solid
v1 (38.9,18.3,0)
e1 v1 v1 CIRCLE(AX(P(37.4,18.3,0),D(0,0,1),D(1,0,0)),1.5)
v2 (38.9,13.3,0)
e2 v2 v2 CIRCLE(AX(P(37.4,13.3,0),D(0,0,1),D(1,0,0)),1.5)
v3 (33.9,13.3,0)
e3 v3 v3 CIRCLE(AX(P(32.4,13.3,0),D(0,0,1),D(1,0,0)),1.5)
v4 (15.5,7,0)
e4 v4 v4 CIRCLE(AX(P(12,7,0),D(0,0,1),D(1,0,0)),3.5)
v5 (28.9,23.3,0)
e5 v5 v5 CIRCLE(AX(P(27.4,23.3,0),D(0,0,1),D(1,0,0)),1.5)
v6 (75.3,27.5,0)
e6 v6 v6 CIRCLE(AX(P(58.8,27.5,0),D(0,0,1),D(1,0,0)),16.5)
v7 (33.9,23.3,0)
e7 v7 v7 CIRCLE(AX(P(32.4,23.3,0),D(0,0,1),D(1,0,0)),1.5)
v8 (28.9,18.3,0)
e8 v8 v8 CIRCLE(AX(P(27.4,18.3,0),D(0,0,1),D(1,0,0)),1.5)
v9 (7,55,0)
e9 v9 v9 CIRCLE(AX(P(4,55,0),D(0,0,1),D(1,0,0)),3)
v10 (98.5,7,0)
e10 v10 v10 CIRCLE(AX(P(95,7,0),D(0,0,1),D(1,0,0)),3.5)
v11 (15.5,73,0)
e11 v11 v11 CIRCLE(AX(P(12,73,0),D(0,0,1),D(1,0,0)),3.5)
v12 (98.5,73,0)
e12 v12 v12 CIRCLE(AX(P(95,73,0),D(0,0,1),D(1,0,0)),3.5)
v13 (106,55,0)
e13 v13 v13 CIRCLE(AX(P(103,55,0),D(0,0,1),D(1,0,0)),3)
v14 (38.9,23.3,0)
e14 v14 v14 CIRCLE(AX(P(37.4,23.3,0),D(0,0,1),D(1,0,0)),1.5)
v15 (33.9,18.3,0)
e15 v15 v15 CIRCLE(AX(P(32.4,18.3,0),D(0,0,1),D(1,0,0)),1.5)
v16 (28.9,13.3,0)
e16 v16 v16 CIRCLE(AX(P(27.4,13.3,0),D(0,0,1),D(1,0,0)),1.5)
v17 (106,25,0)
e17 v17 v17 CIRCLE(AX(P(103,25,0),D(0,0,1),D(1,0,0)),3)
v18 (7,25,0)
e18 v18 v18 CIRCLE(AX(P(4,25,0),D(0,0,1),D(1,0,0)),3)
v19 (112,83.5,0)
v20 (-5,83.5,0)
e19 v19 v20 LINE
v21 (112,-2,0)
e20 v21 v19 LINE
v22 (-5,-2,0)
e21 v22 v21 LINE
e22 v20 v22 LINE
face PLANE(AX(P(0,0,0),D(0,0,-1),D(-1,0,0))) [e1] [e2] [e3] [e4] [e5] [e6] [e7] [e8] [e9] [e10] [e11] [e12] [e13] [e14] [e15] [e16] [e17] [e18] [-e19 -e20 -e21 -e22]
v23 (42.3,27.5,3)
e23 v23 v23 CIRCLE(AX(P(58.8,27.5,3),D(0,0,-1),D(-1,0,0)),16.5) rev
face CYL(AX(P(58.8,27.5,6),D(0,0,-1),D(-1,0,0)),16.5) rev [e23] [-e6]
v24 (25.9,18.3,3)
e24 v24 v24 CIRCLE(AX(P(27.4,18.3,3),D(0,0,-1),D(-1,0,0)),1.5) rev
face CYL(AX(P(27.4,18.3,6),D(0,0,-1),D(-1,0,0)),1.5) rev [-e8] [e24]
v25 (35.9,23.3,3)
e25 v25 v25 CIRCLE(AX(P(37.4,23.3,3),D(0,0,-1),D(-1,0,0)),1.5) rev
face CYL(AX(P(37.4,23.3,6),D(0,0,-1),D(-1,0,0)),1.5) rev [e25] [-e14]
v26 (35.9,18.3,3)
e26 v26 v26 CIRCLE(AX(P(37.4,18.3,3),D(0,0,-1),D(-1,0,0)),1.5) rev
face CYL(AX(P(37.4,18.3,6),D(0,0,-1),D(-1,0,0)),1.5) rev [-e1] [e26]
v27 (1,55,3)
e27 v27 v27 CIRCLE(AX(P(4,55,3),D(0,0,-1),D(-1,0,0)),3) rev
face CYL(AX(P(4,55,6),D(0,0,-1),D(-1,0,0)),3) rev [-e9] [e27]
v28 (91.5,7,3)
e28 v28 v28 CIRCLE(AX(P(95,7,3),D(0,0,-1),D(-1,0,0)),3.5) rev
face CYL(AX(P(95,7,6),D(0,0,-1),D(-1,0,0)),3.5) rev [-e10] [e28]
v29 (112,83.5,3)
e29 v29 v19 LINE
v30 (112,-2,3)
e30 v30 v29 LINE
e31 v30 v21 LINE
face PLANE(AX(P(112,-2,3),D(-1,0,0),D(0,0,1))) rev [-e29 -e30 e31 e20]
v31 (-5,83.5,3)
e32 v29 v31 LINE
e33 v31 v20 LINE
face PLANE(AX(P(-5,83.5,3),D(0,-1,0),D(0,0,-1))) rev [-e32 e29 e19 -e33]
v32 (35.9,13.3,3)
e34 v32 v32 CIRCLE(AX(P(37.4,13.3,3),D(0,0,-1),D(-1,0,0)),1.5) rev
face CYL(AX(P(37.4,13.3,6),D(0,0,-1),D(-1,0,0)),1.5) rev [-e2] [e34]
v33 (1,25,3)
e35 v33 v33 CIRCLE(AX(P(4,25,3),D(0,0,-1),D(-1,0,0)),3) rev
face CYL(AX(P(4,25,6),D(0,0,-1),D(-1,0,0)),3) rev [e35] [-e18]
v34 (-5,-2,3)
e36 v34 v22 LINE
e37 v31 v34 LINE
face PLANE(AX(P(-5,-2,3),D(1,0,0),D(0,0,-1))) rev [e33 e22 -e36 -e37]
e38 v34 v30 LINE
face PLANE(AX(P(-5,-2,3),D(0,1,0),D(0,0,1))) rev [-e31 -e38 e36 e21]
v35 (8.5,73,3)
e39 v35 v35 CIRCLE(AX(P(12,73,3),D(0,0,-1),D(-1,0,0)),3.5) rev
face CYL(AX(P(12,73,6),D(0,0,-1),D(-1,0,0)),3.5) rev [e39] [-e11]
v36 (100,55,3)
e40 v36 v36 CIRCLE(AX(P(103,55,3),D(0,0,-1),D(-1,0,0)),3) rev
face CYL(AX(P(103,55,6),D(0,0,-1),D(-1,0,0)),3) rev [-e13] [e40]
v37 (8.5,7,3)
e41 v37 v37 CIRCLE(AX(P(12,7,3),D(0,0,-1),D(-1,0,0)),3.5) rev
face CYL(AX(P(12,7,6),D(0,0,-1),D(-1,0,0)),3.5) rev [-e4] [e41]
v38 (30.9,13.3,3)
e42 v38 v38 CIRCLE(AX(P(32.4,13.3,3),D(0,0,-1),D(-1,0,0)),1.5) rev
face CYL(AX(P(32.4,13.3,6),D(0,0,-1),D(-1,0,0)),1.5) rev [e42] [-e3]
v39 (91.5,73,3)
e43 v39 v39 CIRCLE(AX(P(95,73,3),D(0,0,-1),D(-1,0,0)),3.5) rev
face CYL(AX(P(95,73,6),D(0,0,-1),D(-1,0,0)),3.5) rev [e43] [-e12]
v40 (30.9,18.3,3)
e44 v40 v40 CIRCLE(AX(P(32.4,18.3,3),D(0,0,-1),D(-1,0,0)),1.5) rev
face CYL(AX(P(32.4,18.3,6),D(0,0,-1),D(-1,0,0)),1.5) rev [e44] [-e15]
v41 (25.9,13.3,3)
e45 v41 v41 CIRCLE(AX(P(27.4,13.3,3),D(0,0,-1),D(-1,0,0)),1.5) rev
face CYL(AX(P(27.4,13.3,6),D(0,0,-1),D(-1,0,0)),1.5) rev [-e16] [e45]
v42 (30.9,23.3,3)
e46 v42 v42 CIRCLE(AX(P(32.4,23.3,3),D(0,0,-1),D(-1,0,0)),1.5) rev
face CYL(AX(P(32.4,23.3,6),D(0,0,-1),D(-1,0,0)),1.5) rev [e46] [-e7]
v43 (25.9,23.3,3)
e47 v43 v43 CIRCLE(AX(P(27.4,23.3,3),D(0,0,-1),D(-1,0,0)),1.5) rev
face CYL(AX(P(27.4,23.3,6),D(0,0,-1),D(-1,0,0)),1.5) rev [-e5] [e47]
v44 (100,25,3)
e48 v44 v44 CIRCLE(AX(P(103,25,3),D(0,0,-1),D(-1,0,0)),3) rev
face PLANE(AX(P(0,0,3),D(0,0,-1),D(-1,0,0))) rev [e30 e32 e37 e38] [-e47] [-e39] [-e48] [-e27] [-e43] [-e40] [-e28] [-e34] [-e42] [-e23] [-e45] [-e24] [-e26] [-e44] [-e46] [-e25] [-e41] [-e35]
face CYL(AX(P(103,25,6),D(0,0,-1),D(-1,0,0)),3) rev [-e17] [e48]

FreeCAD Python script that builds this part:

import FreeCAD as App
import Part
import Sketcher

V = App.Vector
Q = App.Units.Quantity

doc = App.newDocument("Part")
body = doc.addObject("PartDesign::Body", "Body")

# Sketch on XY plane
sketch1 = body.newObject("Sketcher::SketchObject", "Sketch")
sketch1.AttachmentSupport = (doc.getObject("XY_Plane"), [""])
sketch1.MapMode = "FlatFace"
sketch1.addGeometry([
    Part.LineSegment(V(-5, 82, 0), V(-5, -2, 0)),
    Part.LineSegment(V(-5, -2, 0), V(112, -2, 0)),
    Part.LineSegment(V(112, -2, 0), V(112, 82, 0)),
    Part.LineSegment(V(112, 82, 0), V(-5, 82, 0)),
], False)
sketch1.addConstraint([
    Sketcher.Constraint("Coincident", 0, 2, 1, 1),
    Sketcher.Constraint("Coincident", 1, 2, 2, 1),
    Sketcher.Constraint("Coincident", 2, 2, 3, 1),
    Sketcher.Constraint("Coincident", 3, 2, 0, 1),
    Sketcher.Constraint("Vertical", 0),
    Sketcher.Constraint("Horizontal", 1),
    Sketcher.Constraint("Vertical", 2),
    Sketcher.Constraint("Horizontal", 3),
    Sketcher.Constraint("DistanceX", 1, 1, 1, 2, Q("117 mm")),
    Sketcher.Constraint("DistanceY", 0, 2, 0, 1, Q("84 mm")),
    Sketcher.Constraint("DistanceX", 0, 2, -1, 1, Q("5 mm")),
    Sketcher.Constraint("DistanceY", 0, 2, -1, 1, Q("2 mm")),
])
pad1 = body.newObject("PartDesign::Pad", "Pad")
pad1.Profile = sketch1
pad1.Length = 3

# Sketch on XY plane
sketch2 = body.newObject("Sketcher::SketchObject", "Sketch001")
sketch2.AttachmentSupport = (doc.getObject("XY_Plane"), [""])
sketch2.MapMode = "FlatFace"
sketch2.addGeometry([
    Part.Circle(V(12, 7, 0), V(0, 0, 1), 3.5),
    Part.Circle(V(95, 7, 0), V(0, 0, 1), 3.5),
    Part.Circle(V(12, 73, 0), V(0, 0, 1), 3.5),
    Part.Circle(V(95, 73, 0), V(0, 0, 1), 3.5),
], False)
sketch2.addConstraint([
    Sketcher.Constraint("Equal", 0, 1),
    Sketcher.Constraint("Equal", 1, 2),
    Sketcher.Constraint("Equal", 2, 3),
    Sketcher.Constraint("Horizontal", 0, 3, 1, 3),
    Sketcher.Constraint("Horizontal", 2, 3, 3, 3),
    Sketcher.Constraint("Vertical", 0, 3, 2, 3),
    Sketcher.Constraint("Vertical", 1, 3, 3, 3),
    Sketcher.Constraint("Diameter", 0, Q("7 mm")),
    Sketcher.Constraint("DistanceX", -1, 1, 0, 3, Q("12 mm")),
    Sketcher.Constraint("DistanceY", -1, 1, 0, 3, Q("7 mm")),
    Sketcher.Constraint("DistanceX", -1, 1, 1, 3, Q("95 mm")),
    Sketcher.Constraint("DistanceY", -1, 1, 2, 3, Q("73 mm")),
])
pocket1 = body.newObject("PartDesign::Pocket", "Pocket")
pocket1.Profile = sketch2
pocket1.Length = 3
pocket1.Reversed = True

# Sketch on XY plane
sketch3 = body.newObject("Sketcher::SketchObject", "Sketch002")
sketch3.AttachmentSupport = (doc.getObject("XY_Plane"), [""])
sketch3.MapMode = "FlatFace"
sketch3.addGeometry(Part.Circle(V(59, 28, 0), V(0, 0, 1), 16), False)
sketch3.addConstraint([
    Sketcher.Constraint("Diameter", 0, Q("33 mm")),
    Sketcher.Constraint("DistanceX", -1, 1, 0, 3, Q("58.8 mm")),
    Sketcher.Constraint("DistanceY", -1, 1, 0, 3, Q("27.5 mm")),
])
pocket2 = body.newObject("PartDesign::Pocket", "Pocket001")
pocket2.Profile = sketch3
pocket2.Length = 3
pocket2.Reversed = True

# Sketch on XY plane
sketch4 = body.newObject("Sketcher::SketchObject", "Sketch003")
sketch4.AttachmentSupport = (doc.getObject("XY_Plane"), [""])
sketch4.MapMode = "FlatFace"
sketch4.addGeometry([
    Part.Circle(V(27.4, 13.3, 0), V(0, 0, 1), 1.5),  # 0
    Part.Circle(V(27.4, 18.3, 0), V(0, 0, 1), 1.5),  # 1
    Part.Circle(V(27.4, 23.3, 0), V(0, 0, 1), 1.5),  # 2
    Part.Circle(V(32.4, 13.3, 0), V(0, 0, 1), 1.5),  # 3
    Part.Circle(V(32.4, 18.3, 0), V(0, 0, 1), 1.5),  # 4
    Part.Circle(V(32.4, 23.3, 0), V(0, 0, 1), 1.5),  # 5
    Part.Circle(V(37.4, 13.3, 0), V(0, 0, 1), 1.5),  # 6
    Part.Circle(V(37.4, 18.3, 0), V(0, 0, 1), 1.5),  # 7
    Part.Circle(V(37.4, 23.3, 0), V(0, 0, 1), 1.5),  # 8
], False)
sketch4.addConstraint([
    Sketcher.Constraint("Equal", 0, 1),
    Sketcher.Constraint("Equal", 1, 2),
    Sketcher.Constraint("Equal", 2, 3),
    Sketcher.Constraint("Equal", 3, 4),
    Sketcher.Constraint("Equal", 4, 5),
    Sketcher.Constraint("Equal", 5, 6),
    Sketcher.Constraint("Equal", 6, 7),
    Sketcher.Constraint("Equal", 7, 8),
    Sketcher.Constraint("Horizontal", 0, 3, 3, 3),
    Sketcher.Constraint("Horizontal", 1, 3, 4, 3),
    Sketcher.Constraint("Horizontal", 2, 3, 5, 3),
    Sketcher.Constraint("Horizontal", 3, 3, 6, 3),
    Sketcher.Constraint("Horizontal", 4, 3, 7, 3),
    Sketcher.Constraint("Horizontal", 5, 3, 8, 3),
    Sketcher.Constraint("Vertical", 0, 3, 1, 3),
    Sketcher.Constraint("Vertical", 1, 3, 2, 3),
    Sketcher.Constraint("Vertical", 3, 3, 4, 3),
    Sketcher.Constraint("Vertical", 4, 3, 5, 3),
    Sketcher.Constraint("Vertical", 6, 3, 7, 3),
    Sketcher.Constraint("Vertical", 7, 3, 8, 3),
    Sketcher.Constraint("Diameter", 0, Q("3 mm")),
    Sketcher.Constraint("DistanceY", 0, 3, 1, 3, Q("5 mm")),
    Sketcher.Constraint("DistanceY", 1, 3, 2, 3, Q("5 mm")),
    Sketcher.Constraint("DistanceX", 0, 3, 3, 3, Q("5 mm")),
    Sketcher.Constraint("DistanceX", 3, 3, 6, 3, Q("5 mm")),
    Sketcher.Constraint("DistanceX", -1, 1, 0, 3, Q("27.4 mm")),
    Sketcher.Constraint("DistanceY", -1, 1, 0, 3, Q("13.3 mm")),
])
pocket3 = body.newObject("PartDesign::Pocket", "Pocket002")
pocket3.Profile = sketch4
pocket3.Length = 3
pocket3.Reversed = True

# Sketch on XY plane
sketch5 = body.newObject("Sketcher::SketchObject", "Sketch004")
sketch5.AttachmentSupport = (doc.getObject("XY_Plane"), [""])
sketch5.MapMode = "FlatFace"
sketch5.addGeometry([
    Part.Circle(V(4, 25, 0), V(0, 0, 1), 3),
    Part.Circle(V(4, 55, 0), V(0, 0, 1), 3),
    Part.Circle(V(103, 25, 0), V(0, 0, 1), 3),
    Part.Circle(V(103, 55, 0), V(0, 0, 1), 3),
], False)
sketch5.addConstraint([
    Sketcher.Constraint("Equal", 0, 1),
    Sketcher.Constraint("Equal", 1, 2),
    Sketcher.Constraint("Equal", 2, 3),
    Sketcher.Constraint("Horizontal", 0, 3, 2, 3),
    Sketcher.Constraint("Horizontal", 1, 3, 3, 3),
    Sketcher.Constraint("Vertical", 0, 3, 1, 3),
    Sketcher.Constraint("Vertical", 2, 3, 3, 3),
    Sketcher.Constraint("Diameter", 0, Q("6 mm")),
    Sketcher.Constraint("DistanceX", -1, 1, 0, 3, Q("4 mm")),
    Sketcher.Constraint("DistanceY", -1, 1, 0, 3, Q("25 mm")),
    Sketcher.Constraint("DistanceY", -1, 1, 1, 3, Q("55 mm")),
    Sketcher.Constraint("DistanceX", -1, 1, 2, 3, Q("103 mm")),
])
pocket4 = body.newObject("PartDesign::Pocket", "Pocket003")
pocket4.Profile = sketch5
pocket4.Length = 6
pocket4.Reversed = True

# Sketch on XY plane
sketch6 = body.newObject("Sketcher::SketchObject", "Sketch005")
sketch6.AttachmentSupport = (doc.getObject("XY_Plane"), [""])
sketch6.MapMode = "FlatFace"
sketch6.addGeometry([
    Part.LineSegment(V(-5, 83.5, 0), V(-5, 82, 0)),
    Part.LineSegment(V(-5, 82, 0), V(112, 82, 0)),
    Part.LineSegment(V(112, 82, 0), V(112, 83.5, 0)),
    Part.LineSegment(V(112, 83.5, 0), V(-5, 83.5, 0)),
], False)
sketch6.addConstraint([
    Sketcher.Constraint("Coincident", 0, 2, 1, 1),
    Sketcher.Constraint("Coincident", 1, 2, 2, 1),
    Sketcher.Constraint("Coincident", 2, 2, 3, 1),
    Sketcher.Constraint("Coincident", 3, 2, 0, 1),
    Sketcher.Constraint("Vertical", 0),
    Sketcher.Constraint("Horizontal", 1),
    Sketcher.Constraint("Vertical", 2),
    Sketcher.Constraint("Horizontal", 3),
    Sketcher.Constraint("DistanceX", 1, 1, 1, 2, Q("117 mm")),
    Sketcher.Constraint("DistanceY", 0, 2, 0, 1, Q("1.5 mm")),
    Sketcher.Constraint("DistanceX", 0, 2, -1, 1, Q("5 mm")),
    Sketcher.Constraint("DistanceY", -1, 1, 0, 2, Q("82 mm")),
])
pad2 = body.newObject("PartDesign::Pad", "Pad001")
pad2.Profile = sketch6
pad2.Length = 3

doc.recompute()
